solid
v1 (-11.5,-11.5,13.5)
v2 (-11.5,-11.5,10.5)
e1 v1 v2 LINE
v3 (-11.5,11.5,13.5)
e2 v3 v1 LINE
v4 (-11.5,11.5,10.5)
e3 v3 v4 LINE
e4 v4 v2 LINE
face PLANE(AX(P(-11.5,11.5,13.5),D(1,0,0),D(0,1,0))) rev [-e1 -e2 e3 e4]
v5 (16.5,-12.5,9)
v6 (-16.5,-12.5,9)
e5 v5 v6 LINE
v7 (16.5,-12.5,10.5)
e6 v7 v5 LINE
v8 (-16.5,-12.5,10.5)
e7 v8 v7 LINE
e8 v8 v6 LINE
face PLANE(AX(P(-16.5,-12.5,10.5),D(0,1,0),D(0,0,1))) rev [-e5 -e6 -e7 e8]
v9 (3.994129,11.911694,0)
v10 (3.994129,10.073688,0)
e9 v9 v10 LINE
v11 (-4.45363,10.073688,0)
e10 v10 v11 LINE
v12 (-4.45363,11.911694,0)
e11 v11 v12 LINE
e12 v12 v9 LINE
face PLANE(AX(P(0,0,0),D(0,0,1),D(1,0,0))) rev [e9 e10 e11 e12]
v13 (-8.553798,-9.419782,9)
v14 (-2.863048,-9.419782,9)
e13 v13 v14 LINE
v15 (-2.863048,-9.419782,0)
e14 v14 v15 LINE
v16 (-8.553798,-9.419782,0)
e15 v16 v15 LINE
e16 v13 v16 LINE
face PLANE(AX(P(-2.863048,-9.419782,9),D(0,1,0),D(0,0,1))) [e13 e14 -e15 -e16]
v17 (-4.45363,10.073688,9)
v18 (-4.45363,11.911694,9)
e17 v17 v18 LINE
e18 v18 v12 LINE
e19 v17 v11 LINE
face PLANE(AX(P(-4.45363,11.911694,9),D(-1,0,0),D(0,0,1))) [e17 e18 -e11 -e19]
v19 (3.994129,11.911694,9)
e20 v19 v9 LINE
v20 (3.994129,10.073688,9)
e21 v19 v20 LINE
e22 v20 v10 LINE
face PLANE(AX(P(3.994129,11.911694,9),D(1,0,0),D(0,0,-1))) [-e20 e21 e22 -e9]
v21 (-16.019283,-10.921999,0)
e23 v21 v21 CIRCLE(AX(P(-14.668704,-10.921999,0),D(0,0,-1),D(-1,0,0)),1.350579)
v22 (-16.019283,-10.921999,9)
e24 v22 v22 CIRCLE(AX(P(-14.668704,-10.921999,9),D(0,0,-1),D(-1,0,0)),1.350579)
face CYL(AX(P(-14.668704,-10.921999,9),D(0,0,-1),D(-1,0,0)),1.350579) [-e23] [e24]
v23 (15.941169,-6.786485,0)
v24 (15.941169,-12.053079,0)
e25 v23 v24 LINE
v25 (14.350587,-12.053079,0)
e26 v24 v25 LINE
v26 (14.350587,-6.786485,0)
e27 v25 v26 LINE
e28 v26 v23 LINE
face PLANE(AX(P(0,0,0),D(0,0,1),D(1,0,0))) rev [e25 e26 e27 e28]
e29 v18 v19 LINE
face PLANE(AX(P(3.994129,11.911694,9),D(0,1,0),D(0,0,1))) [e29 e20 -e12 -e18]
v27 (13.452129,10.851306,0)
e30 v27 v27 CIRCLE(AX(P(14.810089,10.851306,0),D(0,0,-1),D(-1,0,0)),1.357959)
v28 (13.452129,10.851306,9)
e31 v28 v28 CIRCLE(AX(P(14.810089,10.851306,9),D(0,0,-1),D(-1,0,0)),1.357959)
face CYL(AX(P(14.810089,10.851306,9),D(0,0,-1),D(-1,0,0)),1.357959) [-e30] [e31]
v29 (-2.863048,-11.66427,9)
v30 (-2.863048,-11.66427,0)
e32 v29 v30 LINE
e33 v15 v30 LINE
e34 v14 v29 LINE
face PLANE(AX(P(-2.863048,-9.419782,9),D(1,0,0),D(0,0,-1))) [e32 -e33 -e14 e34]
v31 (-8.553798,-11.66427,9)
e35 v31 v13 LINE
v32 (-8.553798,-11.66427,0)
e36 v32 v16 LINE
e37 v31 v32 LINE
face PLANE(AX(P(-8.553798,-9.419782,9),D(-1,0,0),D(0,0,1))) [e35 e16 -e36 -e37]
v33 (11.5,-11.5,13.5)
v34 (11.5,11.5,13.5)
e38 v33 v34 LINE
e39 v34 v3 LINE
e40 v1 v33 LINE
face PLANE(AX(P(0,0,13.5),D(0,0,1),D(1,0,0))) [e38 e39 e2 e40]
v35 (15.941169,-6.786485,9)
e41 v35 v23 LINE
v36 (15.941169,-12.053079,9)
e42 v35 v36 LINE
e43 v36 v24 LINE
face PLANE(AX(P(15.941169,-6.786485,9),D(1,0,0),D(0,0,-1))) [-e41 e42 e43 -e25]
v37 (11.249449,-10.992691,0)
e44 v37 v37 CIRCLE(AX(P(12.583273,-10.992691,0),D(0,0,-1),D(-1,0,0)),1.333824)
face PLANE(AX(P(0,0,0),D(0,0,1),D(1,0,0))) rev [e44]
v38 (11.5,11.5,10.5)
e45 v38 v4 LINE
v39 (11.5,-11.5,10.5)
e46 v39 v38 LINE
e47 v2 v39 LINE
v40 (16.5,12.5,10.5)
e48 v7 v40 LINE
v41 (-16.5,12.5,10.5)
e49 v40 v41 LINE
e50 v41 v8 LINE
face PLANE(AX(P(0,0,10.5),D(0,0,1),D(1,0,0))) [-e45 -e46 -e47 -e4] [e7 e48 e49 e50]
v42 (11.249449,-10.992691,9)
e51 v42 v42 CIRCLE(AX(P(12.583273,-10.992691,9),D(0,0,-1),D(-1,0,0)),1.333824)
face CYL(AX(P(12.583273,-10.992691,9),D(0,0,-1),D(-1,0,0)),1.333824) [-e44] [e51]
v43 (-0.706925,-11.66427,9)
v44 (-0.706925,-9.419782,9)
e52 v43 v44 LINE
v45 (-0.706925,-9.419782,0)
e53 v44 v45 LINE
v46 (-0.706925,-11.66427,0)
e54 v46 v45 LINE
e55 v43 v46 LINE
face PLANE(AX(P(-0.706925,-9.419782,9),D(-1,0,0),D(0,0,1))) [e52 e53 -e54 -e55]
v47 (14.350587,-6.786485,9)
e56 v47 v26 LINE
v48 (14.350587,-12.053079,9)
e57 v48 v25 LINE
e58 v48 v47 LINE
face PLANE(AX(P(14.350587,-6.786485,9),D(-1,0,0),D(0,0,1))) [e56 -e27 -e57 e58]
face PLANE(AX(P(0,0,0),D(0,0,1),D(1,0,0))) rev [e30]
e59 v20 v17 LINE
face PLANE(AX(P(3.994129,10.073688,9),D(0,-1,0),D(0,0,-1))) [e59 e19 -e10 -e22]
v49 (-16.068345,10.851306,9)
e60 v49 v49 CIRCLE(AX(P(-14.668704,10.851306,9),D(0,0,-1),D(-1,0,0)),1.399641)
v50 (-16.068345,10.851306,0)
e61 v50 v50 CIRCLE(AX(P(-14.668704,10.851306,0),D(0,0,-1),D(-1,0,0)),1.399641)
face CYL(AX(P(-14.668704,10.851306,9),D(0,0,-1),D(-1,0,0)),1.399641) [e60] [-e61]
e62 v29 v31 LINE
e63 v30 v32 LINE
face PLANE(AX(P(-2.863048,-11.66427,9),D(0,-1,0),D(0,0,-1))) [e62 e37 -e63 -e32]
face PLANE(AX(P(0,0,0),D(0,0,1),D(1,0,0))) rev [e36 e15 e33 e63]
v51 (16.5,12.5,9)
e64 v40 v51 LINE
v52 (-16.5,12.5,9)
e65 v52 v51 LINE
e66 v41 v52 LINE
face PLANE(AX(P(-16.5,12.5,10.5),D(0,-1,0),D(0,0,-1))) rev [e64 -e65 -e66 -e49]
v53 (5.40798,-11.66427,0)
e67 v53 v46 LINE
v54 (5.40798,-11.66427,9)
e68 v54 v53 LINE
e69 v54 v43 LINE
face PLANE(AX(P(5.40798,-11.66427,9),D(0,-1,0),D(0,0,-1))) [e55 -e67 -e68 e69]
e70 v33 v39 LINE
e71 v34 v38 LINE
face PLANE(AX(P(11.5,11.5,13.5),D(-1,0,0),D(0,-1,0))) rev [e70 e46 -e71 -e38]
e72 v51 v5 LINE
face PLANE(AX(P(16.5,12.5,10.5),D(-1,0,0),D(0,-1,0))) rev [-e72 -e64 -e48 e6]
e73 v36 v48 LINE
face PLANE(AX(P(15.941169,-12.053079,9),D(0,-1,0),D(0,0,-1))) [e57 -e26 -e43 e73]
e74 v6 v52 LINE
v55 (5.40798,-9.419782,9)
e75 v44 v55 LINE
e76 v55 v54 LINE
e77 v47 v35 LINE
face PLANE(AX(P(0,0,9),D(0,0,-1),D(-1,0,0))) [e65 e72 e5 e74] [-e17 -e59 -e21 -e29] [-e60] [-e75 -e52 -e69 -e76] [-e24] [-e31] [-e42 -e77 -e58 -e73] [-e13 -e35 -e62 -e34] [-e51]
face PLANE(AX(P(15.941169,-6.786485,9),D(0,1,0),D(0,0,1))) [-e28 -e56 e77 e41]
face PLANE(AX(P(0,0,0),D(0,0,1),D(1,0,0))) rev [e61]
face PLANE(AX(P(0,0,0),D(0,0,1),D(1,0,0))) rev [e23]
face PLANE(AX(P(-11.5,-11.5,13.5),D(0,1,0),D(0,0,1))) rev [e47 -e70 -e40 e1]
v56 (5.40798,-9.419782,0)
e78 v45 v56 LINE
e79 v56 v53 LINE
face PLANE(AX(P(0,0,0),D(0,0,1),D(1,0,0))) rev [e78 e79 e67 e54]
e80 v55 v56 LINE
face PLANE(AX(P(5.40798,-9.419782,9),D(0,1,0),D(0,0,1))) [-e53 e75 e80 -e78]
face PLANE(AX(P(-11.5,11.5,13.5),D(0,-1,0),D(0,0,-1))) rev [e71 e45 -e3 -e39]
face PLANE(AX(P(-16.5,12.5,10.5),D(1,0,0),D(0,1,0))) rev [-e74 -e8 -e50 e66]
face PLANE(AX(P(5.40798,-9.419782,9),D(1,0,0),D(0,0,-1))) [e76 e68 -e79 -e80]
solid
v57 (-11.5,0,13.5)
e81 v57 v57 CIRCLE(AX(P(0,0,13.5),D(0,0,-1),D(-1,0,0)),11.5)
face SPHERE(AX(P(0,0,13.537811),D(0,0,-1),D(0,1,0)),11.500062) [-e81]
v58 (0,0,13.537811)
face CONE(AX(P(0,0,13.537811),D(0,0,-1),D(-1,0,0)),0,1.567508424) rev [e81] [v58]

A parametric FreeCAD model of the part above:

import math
import FreeCAD as App
import Part
import Sketcher

V = App.Vector
Q = App.Units.Quantity


def add_polygon(sketch, points):
    """Adds a closed chain of lines whose ends are joined by coincident constraints."""
    first, n = sketch.GeometryCount, len(points)
    for a, b in zip(points, points[1:] + points[:1]):
        sketch.addGeometry(Part.LineSegment(App.Vector(*a, 0), App.Vector(*b, 0)), False)
    for i in range(n):
        sketch.addConstraint(Sketcher.Constraint("Coincident", first + i, 2, first + (i + 1) % n, 1))

doc = App.newDocument("Part")
body = doc.addObject("PartDesign::Body", "Body")

# Sketch on XY plane
sketch1 = body.newObject("Sketcher::SketchObject", "Sketch")
sketch1.AttachmentSupport = (doc.getObject("XY_Plane"), [""])
sketch1.MapMode = "FlatFace"
add_polygon(sketch1, [(-16, 12), (-16, -12), (16, -12), (16, 12)])  # lines 0-3
sketch1.addConstraint([
    Sketcher.Constraint("Vertical", 0),
    Sketcher.Constraint("Horizontal", 1),
    Sketcher.Constraint("Vertical", 2),
    Sketcher.Constraint("Horizontal", 3),
    Sketcher.Constraint("Symmetric", 0, 2, 2, 2, -1, 1),
    Sketcher.Constraint("DistanceX", 1, 1, 1, 2, Q("33 mm")),
    Sketcher.Constraint("DistanceY", 0, 2, 0, 1, Q("25 mm")),
])
pad1 = body.newObject("PartDesign::Pad", "Pad")
pad1.Profile = sketch1
pad1.Length = 10.5

# Sketch on XY plane
sketch2 = body.newObject("Sketcher::SketchObject", "Sketch001")
sketch2.AttachmentSupport = (doc.getObject("XY_Plane"), [""])
sketch2.MapMode = "FlatFace"
sketch2.AttachmentOffset = App.Placement(V(0, 0, 10.5), App.Rotation())
add_polygon(sketch2, [(-12, 12), (-12, -12), (12, -12), (12, 12)])  # lines 0-3
sketch2.addConstraint([
    Sketcher.Constraint("Vertical", 0),
    Sketcher.Constraint("Horizontal", 1),
    Sketcher.Constraint("Vertical", 2),
    Sketcher.Constraint("Horizontal", 3),
    Sketcher.Constraint("Symmetric", 0, 2, 2, 2, -1, 1),
    Sketcher.Constraint("Equal", 3, 0),
    Sketcher.Constraint("DistanceX", 1, 1, 1, 2, Q("23 mm")),
])
pad2 = body.newObject("PartDesign::Pad", "Pad001")
pad2.Profile = sketch2
pad2.Length = 3

# Sketch on XY plane
sketch3 = body.newObject("Sketcher::SketchObject", "Sketch002")
sketch3.AttachmentSupport = (doc.getObject("XY_Plane"), [""])
sketch3.MapMode = "FlatFace"
add_polygon(sketch3, [(16.5, 12.5), (16.5, -12.5), (-16.5, -12.5), (-16.5, 12.5)])  # lines 0-3
sketch3.addGeometry(Part.Circle(V(12.6, -11, 0), V(0, 0, 1), 1.3), False)  # 4
add_polygon(sketch3, [(14.4, -12.1), (15.9, -12.1), (15.9, -6.8), (14.4, -6.8)])  # lines 5-8
add_polygon(sketch3, [(-0.7, -11.7), (5.4, -11.7), (5.4, -9.4), (-0.7, -9.4)])  # lines 9-12
add_polygon(sketch3, [(-8.6, -11.7), (-2.9, -11.7), (-2.9, -9.4), (-8.6, -9.4)])  # lines 13-16
sketch3.addGeometry(Part.Circle(V(-14.7, -10.9, 0), V(0, 0, 1), 1.4), False)  # 17
sketch3.addGeometry(Part.Circle(V(14.8, 10.9, 0), V(0, 0, 1), 1.4), False)  # 18
add_polygon(sketch3, [(-4.5, 10.1), (4, 10.1), (4, 11.9), (-4.5, 11.9)])  # lines 19-22
sketch3.addGeometry(Part.Circle(V(-14.7, 10.9, 0), V(0, 0, 1), 1.4), False)  # 23
sketch3.addConstraint([
    Sketcher.Constraint("Vertical", 0),
    Sketcher.Constraint("Horizontal", 1),
    Sketcher.Constraint("Vertical", 2),
    Sketcher.Constraint("Horizontal", 3),
    Sketcher.Constraint("Horizontal", 5),
    Sketcher.Constraint("Vertical", 6),
    Sketcher.Constraint("Horizontal", 7),
    Sketcher.Constraint("Vertical", 8),
    Sketcher.Constraint("Horizontal", 9),
    Sketcher.Constraint("Vertical", 10),
    Sketcher.Constraint("Horizontal", 11),
    Sketcher.Constraint("Vertical", 12),
    Sketcher.Constraint("Horizontal", 13),
    Sketcher.Constraint("Vertical", 14),
    Sketcher.Constraint("Horizontal", 15),
    Sketcher.Constraint("Vertical", 16),
    Sketcher.Constraint("Horizontal", 19),
    Sketcher.Constraint("Vertical", 20),
    Sketcher.Constraint("Horizontal", 21),
    Sketcher.Constraint("Vertical", 22),
    Sketcher.Constraint("Symmetric", 0, 2, 2, 2, -1, 1),
    Sketcher.Constraint("Horizontal", 18, 3, 23, 3),
    Sketcher.Constraint("Horizontal", 12, 2, 13, 2),
    Sketcher.Constraint("Horizontal", 11, 2, 14, 2),
    Sketcher.Constraint("Vertical", 17, 3, 23, 3),
    Sketcher.Constraint("DistanceX", 1, 2, 1, 1, Q("33 mm")),
    Sketcher.Constraint("DistanceY", 0, 2, 0, 1, Q("25 mm")),
    Sketcher.Constraint("Diameter", 4, Q("2.667649 mm")),
    Sketcher.Constraint("Diameter", 17, Q("2.701158 mm")),
    Sketcher.Constraint("Diameter", 18, Q("2.715919 mm")),
    Sketcher.Constraint("Diameter", 23, Q("2.799282 mm")),
    Sketcher.Constraint("DistanceY", 17, 3, -1, 1, Q("10.921999 mm")),
    Sketcher.Constraint("DistanceX", 13, 1, 13, 2, Q("5.69075 mm")),
    Sketcher.Constraint("DistanceX", 19, 1, 19, 2, Q("8.447759 mm")),
    Sketcher.Constraint("DistanceY", 10, 1, 10, 2, Q("2.244488 mm")),
    Sketcher.Constraint("DistanceX", 15, 2, -1, 1, Q("8.553798 mm")),
    Sketcher.Constraint("DistanceX", 7, 2, 18, 3, Q("0.459502 mm")),
    Sketcher.Constraint("DistanceX", 11, 2, 4, 3, Q("13.290199 mm")),
    Sketcher.Constraint("DistanceX", 5, 1, 5, 2, Q("1.590582 mm")),
    Sketcher.Constraint("DistanceX", 9, 1, 9, 2, Q("6.114905 mm")),
    Sketcher.Constraint("DistanceY", 6, 1, 6, 2, Q("5.266595 mm")),
    Sketcher.Constraint("DistanceY", 20, 1, 20, 2, Q("1.838006 mm")),
    Sketcher.Constraint("DistanceY", 4, 3, -1, 1, Q("10.992691 mm")),
    Sketcher.Constraint("DistanceX", -1, 1, 18, 3, Q("14.810089 mm")),
    Sketcher.Constraint("DistanceY", 5, 2, -1, 1, Q("12.053079 mm")),
    Sketcher.Constraint("DistanceX", -1, 1, 9, 2, Q("5.40798 mm")),
    Sketcher.Constraint("DistanceY", 9, 2, -1, 1, Q("11.66427 mm")),
    Sketcher.Constraint("DistanceX", -1, 1, 19, 2, Q("3.994129 mm")),
    Sketcher.Constraint("DistanceY", 6, 2, 18, 3, Q("17.637791 mm")),
    Sketcher.Constraint("DistanceX", 17, 3, 11, 2, Q("13.961778 mm")),
    Sketcher.Constraint("DistanceY", 19, 2, 18, 3, Q("0.777618 mm")),
])
pocket1 = body.newObject("PartDesign::Pocket", "Pocket")
pocket1.Profile = sketch3
pocket1.Length = 9
pocket1.Reversed = True
body2 = doc.addObject("PartDesign::Body", "Body001")

# Sketch on YZ plane
sketch4 = body2.newObject("Sketcher::SketchObject", "Sketch003")
sketch4.AttachmentSupport = (doc.getObject("YZ_Plane001"), [""])
sketch4.MapMode = "FlatFace"
sketch4.addGeometry([
    Part.LineSegment(V(0, 25, 0), V(0, 14, 0)),
    Part.LineSegment(V(0, 14, 0), V(12, 14, 0)),
    Part.ArcOfCircle(Part.Circle(V(0, 14, 0), V(0, 0, 1), 12), math.radians(0), math.radians(90)),
], False)
sketch4.addConstraint([
    Sketcher.Constraint("Coincident", 0, 2, 1, 1),
    Sketcher.Constraint("Coincident", 1, 2, 2, 1),
    Sketcher.Constraint("Coincident", 2, 2, 0, 1),
    Sketcher.Constraint("Vertical", 0),
    Sketcher.Constraint("Coincident", 0, 2, 2, 3),
    Sketcher.Constraint("PointOnObject", 2, 3, -2),
    Sketcher.Constraint("DistanceX", -1, 1, 1, 2, Q("11.5 mm")),
    Sketcher.Constraint("DistanceY", -1, 1, 1, 2, Q("13.5 mm")),
    Sketcher.Constraint("DistanceY", -1, 1, 2, 3, Q("13.537811 mm")),
])
revolution = body2.newObject("PartDesign::Revolution", "Revolution")
revolution.Profile = sketch4
revolution.ReferenceAxis = (sketch4, ["V_Axis"])
revolution.Angle = 360

doc.recompute()
